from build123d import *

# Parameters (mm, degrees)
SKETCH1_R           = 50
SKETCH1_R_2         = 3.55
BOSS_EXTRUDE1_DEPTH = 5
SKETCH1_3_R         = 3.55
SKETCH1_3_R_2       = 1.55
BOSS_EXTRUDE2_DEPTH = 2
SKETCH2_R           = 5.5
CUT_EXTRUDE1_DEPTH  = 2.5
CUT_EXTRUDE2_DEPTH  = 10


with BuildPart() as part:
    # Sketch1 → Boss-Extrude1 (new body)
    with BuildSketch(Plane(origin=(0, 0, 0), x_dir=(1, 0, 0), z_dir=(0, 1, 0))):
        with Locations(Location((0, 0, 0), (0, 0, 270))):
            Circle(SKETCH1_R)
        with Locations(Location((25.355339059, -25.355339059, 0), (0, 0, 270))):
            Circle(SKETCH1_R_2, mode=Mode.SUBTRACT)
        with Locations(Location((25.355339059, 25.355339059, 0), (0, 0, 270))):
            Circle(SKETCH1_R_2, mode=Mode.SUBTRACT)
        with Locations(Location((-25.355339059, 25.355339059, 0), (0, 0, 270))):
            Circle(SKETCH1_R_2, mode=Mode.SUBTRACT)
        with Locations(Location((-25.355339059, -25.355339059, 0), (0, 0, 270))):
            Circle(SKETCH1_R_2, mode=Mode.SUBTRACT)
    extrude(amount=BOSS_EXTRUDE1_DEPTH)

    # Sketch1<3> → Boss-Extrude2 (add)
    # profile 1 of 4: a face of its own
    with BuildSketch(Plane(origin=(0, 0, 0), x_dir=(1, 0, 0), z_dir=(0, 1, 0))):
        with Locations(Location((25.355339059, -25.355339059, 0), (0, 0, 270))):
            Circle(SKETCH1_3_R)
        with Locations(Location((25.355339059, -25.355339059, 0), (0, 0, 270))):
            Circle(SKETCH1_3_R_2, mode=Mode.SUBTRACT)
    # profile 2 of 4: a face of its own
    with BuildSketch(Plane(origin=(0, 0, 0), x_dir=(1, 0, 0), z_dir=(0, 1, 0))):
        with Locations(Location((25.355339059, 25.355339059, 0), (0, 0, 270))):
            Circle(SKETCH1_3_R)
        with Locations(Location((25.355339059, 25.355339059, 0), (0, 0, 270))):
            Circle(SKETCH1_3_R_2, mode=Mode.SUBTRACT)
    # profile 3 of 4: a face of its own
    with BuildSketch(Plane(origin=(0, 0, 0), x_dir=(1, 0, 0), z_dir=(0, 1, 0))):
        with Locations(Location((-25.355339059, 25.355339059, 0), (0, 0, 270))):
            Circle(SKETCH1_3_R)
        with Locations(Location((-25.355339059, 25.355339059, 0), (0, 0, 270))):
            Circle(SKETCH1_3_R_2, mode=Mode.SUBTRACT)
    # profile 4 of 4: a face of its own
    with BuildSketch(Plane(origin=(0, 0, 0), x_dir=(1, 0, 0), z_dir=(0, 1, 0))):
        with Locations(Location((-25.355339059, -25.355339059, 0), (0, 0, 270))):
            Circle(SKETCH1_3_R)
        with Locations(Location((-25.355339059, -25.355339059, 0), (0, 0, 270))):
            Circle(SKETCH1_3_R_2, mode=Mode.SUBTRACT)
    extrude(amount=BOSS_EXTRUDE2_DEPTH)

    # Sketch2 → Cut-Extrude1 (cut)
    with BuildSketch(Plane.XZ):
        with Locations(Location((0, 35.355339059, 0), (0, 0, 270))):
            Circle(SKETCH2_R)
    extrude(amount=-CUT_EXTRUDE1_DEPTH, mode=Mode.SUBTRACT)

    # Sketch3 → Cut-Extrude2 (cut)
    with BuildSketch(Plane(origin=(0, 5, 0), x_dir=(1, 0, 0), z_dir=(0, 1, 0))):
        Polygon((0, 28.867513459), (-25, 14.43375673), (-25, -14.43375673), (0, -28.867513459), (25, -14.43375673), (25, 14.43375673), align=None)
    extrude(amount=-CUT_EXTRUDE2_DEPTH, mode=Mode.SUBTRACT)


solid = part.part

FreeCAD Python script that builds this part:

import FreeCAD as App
import Part
import Sketcher
from FreeCAD import Vector
Q = App.Units.Quantity

doc = App.newDocument("Part")
params = doc.addObject("Spreadsheet::Sheet", "Params")
for row, (alias, value) in enumerate([
    ("sketch1_diameter", "100 mm"),
    ("sketch1_diameter2", "7.1 mm"),
    ("pad1_length", "5 mm"),
    ("sketch2_diameter", "7.1 mm"),
    ("sketch2_diameter2", "3.1 mm"),
    ("pad2_length", "2 mm"),
    ("sketch3_diameter", "11 mm"),
    ("pocket1_length", "2.5 mm"),
    ("pocket2_length", "10 mm"),
], start=1):
    params.set(f"A{row}", alias)
    params.set(f"B{row}", "=" + value)
    params.setAlias(f"B{row}", alias)

body = doc.addObject("PartDesign::Body", "Body")

# Sketch on XZ plane
sketch1 = doc.addObject("Sketcher::SketchObject", "Sketch")
body.addObject(sketch1)
sketch1.AttachmentSupport = (doc.XZ_Plane, [""])
sketch1.MapMode = "FlatFace"
sketch1.addGeometry(Part.Circle(Vector(0, 0, 0), Vector(0, 0, 1), 50), False)
sketch1.addGeometry(Part.Circle(Vector(-25.355339, -25.355339, 0), Vector(0, 0, 1), 3.55), False)
sketch1.addGeometry(Part.Circle(Vector(-25.355339, 25.355339, 0), Vector(0, 0, 1), 3.55), False)
sketch1.addGeometry(Part.Circle(Vector(25.355339, -25.355339, 0), Vector(0, 0, 1), 3.55), False)
sketch1.addGeometry(Part.Circle(Vector(25.355339, 25.355339, 0), Vector(0, 0, 1), 3.55), False)
sketch1.addConstraint(Sketcher.Constraint("Coincident", 0, 3, -1, 1))
sketch1.addConstraint(Sketcher.Constraint("Equal", 1, 2))
sketch1.addConstraint(Sketcher.Constraint("Equal", 2, 3))
sketch1.addConstraint(Sketcher.Constraint("Equal", 3, 4))
sketch1.addConstraint(Sketcher.Constraint("Symmetric", 2, 3, 3, 3, -1, 1))
sketch1.addConstraint(Sketcher.Constraint("Symmetric", 1, 3, 4, 3, -1, 1))
sketch1.addConstraint(Sketcher.Constraint("Symmetric", 1, 3, 3, 3, -2))
sketch1.addConstraint(Sketcher.Constraint("Diameter", 0, Q("100 mm")))
sketch1.addConstraint(Sketcher.Constraint("Diameter", 1, Q("7.1 mm")))
sketch1.addConstraint(Sketcher.Constraint("DistanceX", 1, 3, -1, 1, Q("25.355339 mm")))
sketch1.addConstraint(Sketcher.Constraint("DistanceY", 1, 3, -1, 1, Q("25.355339 mm")))
sketch1.setExpression("Constraints[7]", "Params.sketch1_diameter")
sketch1.setExpression("Constraints[8]", "Params.sketch1_diameter2")
pad1 = doc.addObject("PartDesign::Pad", "Pad")
body.addObject(pad1)
pad1.Profile = sketch1
pad1.setExpression("Length", "Params.pad1_length")
pad1.Reversed = True

# Sketch on XZ plane
sketch2 = doc.addObject("Sketcher::SketchObject", "Sketch001")
body.addObject(sketch2)
sketch2.AttachmentSupport = (doc.XZ_Plane, [""])
sketch2.MapMode = "FlatFace"
sketch2.addGeometry(Part.Circle(Vector(25.355339, 25.355339, 0), Vector(0, 0, 1), 3.55), False)
sketch2.addGeometry(Part.Circle(Vector(25.355339, 25.355339, 0), Vector(0, 0, 1), 1.55), False)
sketch2.addGeometry(Part.Circle(Vector(25.355339, -25.355339, 0), Vector(0, 0, 1), 3.55), False)
sketch2.addGeometry(Part.Circle(Vector(25.355339, -25.355339, 0), Vector(0, 0, 1), 1.55), False)
sketch2.addGeometry(Part.Circle(Vector(-25.355339, -25.355339, 0), Vector(0, 0, 1), 3.55), False)
sketch2.addGeometry(Part.Circle(Vector(-25.355339, -25.355339, 0), Vector(0, 0, 1), 1.55), False)
sketch2.addGeometry(Part.Circle(Vector(-25.355339, 25.355339, 0), Vector(0, 0, 1), 3.55), False)
sketch2.addGeometry(Part.Circle(Vector(-25.355339, 25.355339, 0), Vector(0, 0, 1), 1.55), False)
sketch2.addConstraint(Sketcher.Constraint("Coincident", 1, 3, 0, 3))
sketch2.addConstraint(Sketcher.Constraint("Coincident", 3, 3, 2, 3))
sketch2.addConstraint(Sketcher.Constraint("Coincident", 5, 3, 4, 3))
sketch2.addConstraint(Sketcher.Constraint("Coincident", 7, 3, 6, 3))
sketch2.addConstraint(Sketcher.Constraint("Equal", 0, 2))
sketch2.addConstraint(Sketcher.Constraint("Equal", 1, 3))
sketch2.addConstraint(Sketcher.Constraint("Equal", 2, 4))
sketch2.addConstraint(Sketcher.Constraint("Equal", 3, 5))
sketch2.addConstraint(Sketcher.Constraint("Equal", 4, 6))
sketch2.addConstraint(Sketcher.Constraint("Equal", 5, 7))
sketch2.addConstraint(Sketcher.Constraint("Symmetric", 0, 3, 4, 3, -1, 1))
sketch2.addConstraint(Sketcher.Constraint("Symmetric", 2, 3, 6, 3, -1, 1))
sketch2.addConstraint(Sketcher.Constraint("Symmetric", 2, 3, 4, 3, -2))
sketch2.addConstraint(Sketcher.Constraint("Diameter", 0, Q("7.1 mm")))
sketch2.addConstraint(Sketcher.Constraint("Diameter", 1, Q("3.1 mm")))
sketch2.addConstraint(Sketcher.Constraint("DistanceX", -1, 1, 0, 3, Q("25.355339 mm")))
sketch2.addConstraint(Sketcher.Constraint("DistanceY", -1, 1, 0, 3, Q("25.355339 mm")))
sketch2.setExpression("Constraints[13]", "Params.sketch2_diameter")
sketch2.setExpression("Constraints[14]", "Params.sketch2_diameter2")
pad2 = doc.addObject("PartDesign::Pad", "Pad001")
body.addObject(pad2)
pad2.Profile = sketch2
pad2.setExpression("Length", "Params.pad2_length")
pad2.Reversed = True

# Sketch on XZ plane
sketch3 = doc.addObject("Sketcher::SketchObject", "Sketch002")
body.addObject(sketch3)
sketch3.AttachmentSupport = (doc.XZ_Plane, [""])
sketch3.MapMode = "FlatFace"
sketch3.addGeometry(Part.Circle(Vector(0, 35.355339, 0), Vector(0, 0, 1), 5.5), False)
sketch3.addConstraint(Sketcher.Constraint("PointOnObject", 0, 3, -2))
sketch3.addConstraint(Sketcher.Constraint("Diameter", 0, Q("11 mm")))
sketch3.addConstraint(Sketcher.Constraint("DistanceY", -1, 1, 0, 3, Q("35.355339 mm")))
sketch3.setExpression("Constraints[1]", "Params.sketch3_diameter")
pocket1 = doc.addObject("PartDesign::Pocket", "Pocket")
body.addObject(pocket1)
pocket1.Profile = sketch3
pocket1.setExpression("Length", "Params.pocket1_length")

# Sketch on XZ plane
sketch4 = doc.addObject("Sketcher::SketchObject", "Sketch003")
body.addObject(sketch4)
sketch4.AttachmentSupport = (doc.XZ_Plane, [""])
sketch4.MapMode = "FlatFace"
sketch4.AttachmentOffset = App.Placement(Vector(0, 0, -5), App.Rotation())
sketch4.addGeometry(Part.LineSegment(Vector(0, -28.867513, 0), Vector(-25, -14.433757, 0)), False)
sketch4.addGeometry(Part.LineSegment(Vector(-25, -14.433757, 0), Vector(-25, 14.433757, 0)), False)
sketch4.addGeometry(Part.LineSegment(Vector(-25, 14.433757, 0), Vector(0, 28.867513, 0)), False)
sketch4.addGeometry(Part.LineSegment(Vector(0, 28.867513, 0), Vector(25, 14.433757, 0)), False)
sketch4.addGeometry(Part.LineSegment(Vector(25, 14.433757, 0), Vector(25, -14.433757, 0)), False)
sketch4.addGeometry(Part.LineSegment(Vector(25, -14.433757, 0), Vector(0, -28.867513, 0)), False)
sketch4.addConstraint(Sketcher.Constraint("Coincident", 0, 2, 1, 1))
sketch4.addConstraint(Sketcher.Constraint("Coincident", 1, 2, 2, 1))
sketch4.addConstraint(Sketcher.Constraint("Coincident", 2, 2, 3, 1))
sketch4.addConstraint(Sketcher.Constraint("Coincident", 3, 2, 4, 1))
sketch4.addConstraint(Sketcher.Constraint("Coincident", 4, 2, 5, 1))
sketch4.addConstraint(Sketcher.Constraint("Coincident", 5, 2, 0, 1))
sketch4.addConstraint(Sketcher.Constraint("Vertical", 1))
sketch4.addConstraint(Sketcher.Constraint("Vertical", 4))
sketch4.addConstraint(Sketcher.Constraint("Symmetric", 0, 2, 3, 2, -1, 1))
sketch4.addConstraint(Sketcher.Constraint("Symmetric", 2, 2, 5, 2, -1, 1))
sketch4.addConstraint(Sketcher.Constraint("PointOnObject", 2, 2, -2))
sketch4.addConstraint(Sketcher.Constraint("Parallel", 2, 5))
sketch4.addConstraint(Sketcher.Constraint("Horizontal", 1, 2, 3, 2))
sketch4.addConstraint(Sketcher.Constraint("Angle", 0, Q("150 deg")))
sketch4.addConstraint(Sketcher.Constraint("DistanceX", 0, 2, -1, 1, Q("25 mm")))
sketch4.addConstraint(Sketcher.Constraint("DistanceY", 1, 1, 1, 2, Q("28.867513 mm")))
pocket2 = doc.addObject("PartDesign::Pocket", "Pocket001")
body.addObject(pocket2)
pocket2.Profile = sketch4
pocket2.setExpression("Length", "Params.pocket2_length")
pocket2.Reversed = True

doc.recompute()
